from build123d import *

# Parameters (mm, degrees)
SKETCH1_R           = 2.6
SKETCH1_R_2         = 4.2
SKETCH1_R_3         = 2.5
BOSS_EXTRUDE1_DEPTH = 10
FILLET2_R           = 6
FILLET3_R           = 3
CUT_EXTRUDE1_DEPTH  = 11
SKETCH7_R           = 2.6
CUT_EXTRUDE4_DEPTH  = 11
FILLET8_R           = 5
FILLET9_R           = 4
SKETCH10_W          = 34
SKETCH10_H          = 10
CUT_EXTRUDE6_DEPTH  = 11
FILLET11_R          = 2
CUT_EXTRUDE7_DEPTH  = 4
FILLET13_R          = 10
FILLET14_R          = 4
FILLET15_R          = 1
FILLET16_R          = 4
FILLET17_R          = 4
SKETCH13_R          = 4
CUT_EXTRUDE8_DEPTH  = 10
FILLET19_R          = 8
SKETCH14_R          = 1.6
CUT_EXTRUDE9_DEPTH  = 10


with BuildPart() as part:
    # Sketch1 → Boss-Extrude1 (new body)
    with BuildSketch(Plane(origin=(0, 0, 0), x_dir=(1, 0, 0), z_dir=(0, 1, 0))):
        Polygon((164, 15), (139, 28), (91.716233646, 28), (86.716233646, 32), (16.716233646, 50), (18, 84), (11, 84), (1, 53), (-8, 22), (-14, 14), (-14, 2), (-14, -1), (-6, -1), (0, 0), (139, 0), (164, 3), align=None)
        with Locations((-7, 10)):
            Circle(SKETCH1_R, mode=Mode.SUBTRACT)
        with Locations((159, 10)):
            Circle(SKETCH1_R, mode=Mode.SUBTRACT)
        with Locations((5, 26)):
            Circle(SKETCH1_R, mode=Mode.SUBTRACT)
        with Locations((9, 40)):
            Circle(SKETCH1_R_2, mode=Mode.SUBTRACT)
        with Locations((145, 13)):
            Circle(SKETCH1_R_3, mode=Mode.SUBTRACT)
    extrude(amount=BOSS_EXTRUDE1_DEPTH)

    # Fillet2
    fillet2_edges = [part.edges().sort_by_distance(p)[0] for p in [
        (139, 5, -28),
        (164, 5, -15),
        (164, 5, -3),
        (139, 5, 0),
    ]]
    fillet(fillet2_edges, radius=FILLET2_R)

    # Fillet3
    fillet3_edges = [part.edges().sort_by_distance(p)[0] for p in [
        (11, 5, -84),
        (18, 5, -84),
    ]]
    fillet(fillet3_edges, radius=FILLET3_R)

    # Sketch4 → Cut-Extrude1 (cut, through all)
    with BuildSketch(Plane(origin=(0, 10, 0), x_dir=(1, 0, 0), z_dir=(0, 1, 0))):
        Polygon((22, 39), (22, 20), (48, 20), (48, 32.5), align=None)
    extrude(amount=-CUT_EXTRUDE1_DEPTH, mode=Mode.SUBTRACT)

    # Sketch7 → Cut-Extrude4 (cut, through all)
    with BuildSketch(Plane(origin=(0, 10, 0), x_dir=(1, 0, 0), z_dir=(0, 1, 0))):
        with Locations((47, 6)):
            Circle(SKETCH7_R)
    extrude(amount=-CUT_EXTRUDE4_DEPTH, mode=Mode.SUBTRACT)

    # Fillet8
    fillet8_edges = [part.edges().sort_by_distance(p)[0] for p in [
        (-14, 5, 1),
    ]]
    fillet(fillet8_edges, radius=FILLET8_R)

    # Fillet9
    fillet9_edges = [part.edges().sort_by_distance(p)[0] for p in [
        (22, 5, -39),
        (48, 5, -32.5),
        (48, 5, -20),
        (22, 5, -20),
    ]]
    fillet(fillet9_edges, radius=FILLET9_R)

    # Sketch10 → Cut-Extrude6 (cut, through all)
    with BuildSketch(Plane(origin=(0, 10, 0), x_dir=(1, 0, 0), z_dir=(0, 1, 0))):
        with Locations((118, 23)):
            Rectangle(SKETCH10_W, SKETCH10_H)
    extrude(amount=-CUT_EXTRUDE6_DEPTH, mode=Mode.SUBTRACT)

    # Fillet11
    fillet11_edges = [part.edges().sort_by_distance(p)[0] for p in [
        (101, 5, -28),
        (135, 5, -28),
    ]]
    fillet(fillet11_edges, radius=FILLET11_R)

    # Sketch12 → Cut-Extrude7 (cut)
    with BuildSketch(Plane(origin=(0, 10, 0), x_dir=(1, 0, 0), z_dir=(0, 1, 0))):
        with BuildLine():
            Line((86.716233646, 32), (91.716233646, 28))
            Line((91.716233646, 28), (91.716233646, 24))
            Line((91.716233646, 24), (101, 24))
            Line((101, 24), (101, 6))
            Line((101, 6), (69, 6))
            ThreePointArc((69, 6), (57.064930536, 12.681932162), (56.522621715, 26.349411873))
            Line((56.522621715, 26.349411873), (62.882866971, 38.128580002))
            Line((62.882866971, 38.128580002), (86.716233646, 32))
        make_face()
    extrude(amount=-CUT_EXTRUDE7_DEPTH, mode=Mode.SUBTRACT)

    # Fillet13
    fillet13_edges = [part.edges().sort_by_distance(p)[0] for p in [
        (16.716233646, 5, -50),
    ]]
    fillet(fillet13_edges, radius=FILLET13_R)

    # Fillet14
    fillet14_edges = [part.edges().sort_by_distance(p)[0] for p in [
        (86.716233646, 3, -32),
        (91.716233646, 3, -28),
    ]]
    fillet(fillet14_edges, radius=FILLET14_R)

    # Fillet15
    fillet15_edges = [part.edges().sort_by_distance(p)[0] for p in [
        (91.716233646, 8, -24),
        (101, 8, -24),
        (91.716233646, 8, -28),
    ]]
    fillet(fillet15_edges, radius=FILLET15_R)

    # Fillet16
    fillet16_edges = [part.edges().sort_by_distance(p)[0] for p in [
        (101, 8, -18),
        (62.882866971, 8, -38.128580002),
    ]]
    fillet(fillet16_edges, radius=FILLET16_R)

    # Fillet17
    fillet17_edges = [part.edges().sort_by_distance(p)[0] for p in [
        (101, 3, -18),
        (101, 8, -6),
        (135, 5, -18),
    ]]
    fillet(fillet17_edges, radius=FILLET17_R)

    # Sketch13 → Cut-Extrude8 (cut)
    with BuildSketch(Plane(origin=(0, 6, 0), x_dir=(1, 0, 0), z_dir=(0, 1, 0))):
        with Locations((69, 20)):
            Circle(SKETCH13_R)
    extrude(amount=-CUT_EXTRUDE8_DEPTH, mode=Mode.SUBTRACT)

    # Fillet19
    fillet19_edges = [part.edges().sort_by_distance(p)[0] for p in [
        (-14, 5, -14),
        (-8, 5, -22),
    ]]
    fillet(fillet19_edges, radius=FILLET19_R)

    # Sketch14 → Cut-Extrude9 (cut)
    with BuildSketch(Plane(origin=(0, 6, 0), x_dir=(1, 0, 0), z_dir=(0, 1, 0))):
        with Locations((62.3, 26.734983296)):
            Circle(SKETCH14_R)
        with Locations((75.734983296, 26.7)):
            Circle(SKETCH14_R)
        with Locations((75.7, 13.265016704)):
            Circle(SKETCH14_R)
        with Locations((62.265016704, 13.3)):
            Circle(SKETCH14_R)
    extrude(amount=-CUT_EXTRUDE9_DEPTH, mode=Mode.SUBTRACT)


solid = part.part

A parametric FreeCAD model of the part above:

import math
import FreeCAD as App
import Part
import Sketcher

V = App.Vector
Q = App.Units.Quantity


def edges_at(feature, points):
    """Names of the edges that pass closest to the given points."""
    edges = feature.Shape.Edges
    near = lambda p: min(range(len(edges)), key=lambda i: edges[i].distToShape(Part.Vertex(*p))[0])
    return sorted({f"Edge{near(p) + 1}" for p in points})

doc = App.newDocument("Part")
body = doc.addObject("PartDesign::Body", "Body")

# Sketch on XZ plane
sketch1 = doc.addObject("Sketcher::SketchObject", "Sketch")
body.addObject(sketch1)
sketch1.AttachmentSupport = (doc.XZ_Plane, [""])
sketch1.MapMode = "FlatFace"
sketch1.addGeometry([
    Part.LineSegment(V(164, -15, 0), V(139, -28, 0)),  # 0
    Part.LineSegment(V(139, -28, 0), V(91.7, -28, 0)),  # 1
    Part.LineSegment(V(91.7, -28, 0), V(86.7, -32, 0)),  # 2
    Part.LineSegment(V(86.7, -32, 0), V(16.7, -50, 0)),  # 3
    Part.LineSegment(V(16.7, -50, 0), V(18, -84, 0)),  # 4
    Part.LineSegment(V(18, -84, 0), V(11, -84, 0)),  # 5
    Part.LineSegment(V(11, -84, 0), V(1, -53, 0)),  # 6
    Part.LineSegment(V(1, -53, 0), V(-8, -22, 0)),  # 7
    Part.LineSegment(V(-8, -22, 0), V(-14, -14, 0)),  # 8
    Part.LineSegment(V(-14, -14, 0), V(-14, 1, 0)),  # 9
    Part.LineSegment(V(-14, 1, 0), V(-6, 1, 0)),  # 10
    Part.LineSegment(V(-6, 1, 0), V(0, 0, 0)),  # 11
    Part.LineSegment(V(0, 0, 0), V(139, 0, 0)),  # 12
    Part.LineSegment(V(139, 0, 0), V(164, -3, 0)),  # 13
    Part.LineSegment(V(164, -3, 0), V(164, -15, 0)),  # 14
    Part.Circle(V(-7, -10, 0), V(0, 0, 1), 2.6),  # 15
    Part.Circle(V(159, -10, 0), V(0, 0, 1), 2.6),  # 16
    Part.Circle(V(145, -13, 0), V(0, 0, 1), 2.5),  # 17
    Part.Circle(V(5, -26, 0), V(0, 0, 1), 2.6),  # 18
    Part.Circle(V(9, -40, 0), V(0, 0, 1), 4.2),  # 19
], False)
sketch1.addConstraint([
    Sketcher.Constraint("Coincident", 0, 2, 1, 1),
    Sketcher.Constraint("Coincident", 1, 2, 2, 1),
    Sketcher.Constraint("Coincident", 2, 2, 3, 1),
    Sketcher.Constraint("Coincident", 3, 2, 4, 1),
    Sketcher.Constraint("Coincident", 4, 2, 5, 1),
    Sketcher.Constraint("Coincident", 5, 2, 6, 1),
    Sketcher.Constraint("Coincident", 6, 2, 7, 1),
    Sketcher.Constraint("Coincident", 7, 2, 8, 1),
    Sketcher.Constraint("Coincident", 8, 2, 9, 1),
    Sketcher.Constraint("Coincident", 9, 2, 10, 1),
    Sketcher.Constraint("Coincident", 10, 2, 11, 1),
    Sketcher.Constraint("Coincident", 11, 2, 12, 1),
    Sketcher.Constraint("Coincident", 12, 2, 13, 1),
    Sketcher.Constraint("Coincident", 13, 2, 14, 1),
    Sketcher.Constraint("Coincident", 14, 2, 0, 1),
    Sketcher.Constraint("Horizontal", 1),
    Sketcher.Constraint("Horizontal", 5),
    Sketcher.Constraint("Vertical", 9),
    Sketcher.Constraint("Horizontal", 10),
    Sketcher.Constraint("Horizontal", 12),
    Sketcher.Constraint("Vertical", 14),
    Sketcher.Constraint("Coincident", 11, 2, -1, 1),
    Sketcher.Constraint("Equal", 15, 16),
    Sketcher.Constraint("Equal", 16, 18),
    Sketcher.Constraint("Horizontal", 15, 3, 16, 3),
    Sketcher.Constraint("Vertical", 0, 2, 12, 2),
    Sketcher.Constraint("Diameter", 17, Q("5 mm")),
    Sketcher.Constraint("Diameter", 15, Q("5.2 mm")),
    Sketcher.Constraint("Diameter", 19, Q("8.4 mm")),
    Sketcher.Constraint("DistanceX", 5, 2, 5, 1, Q("7 mm")),
    Sketcher.Constraint("DistanceX", 10, 1, 10, 2, Q("8 mm")),
    Sketcher.Constraint("DistanceX", 12, 1, 12, 2, Q("139 mm")),
    Sketcher.Constraint("DistanceY", 9, 1, 9, 2, Q("15 mm")),
    Sketcher.Constraint("DistanceY", 14, 2, 14, 1, Q("12 mm")),
    Sketcher.Constraint("Distance", 8, Q("10 mm")),
    Sketcher.Constraint("DistanceX", 15, 3, -1, 1, Q("7 mm")),
    Sketcher.Constraint("DistanceY", 15, 3, -1, 1, Q("10 mm")),
    Sketcher.Constraint("DistanceX", -1, 1, 16, 3, Q("159 mm")),
    Sketcher.Constraint("DistanceX", -1, 1, 17, 3, Q("145 mm")),
    Sketcher.Constraint("DistanceY", 17, 3, -1, 1, Q("13 mm")),
    Sketcher.Constraint("DistanceX", -1, 1, 18, 3, Q("5 mm")),
    Sketcher.Constraint("DistanceY", 18, 3, -1, 1, Q("26 mm")),
    Sketcher.Constraint("DistanceX", -1, 1, 19, 3, Q("9 mm")),
    Sketcher.Constraint("DistanceY", 19, 3, -1, 1, Q("40 mm")),
    Sketcher.Constraint("DistanceY", 0, 2, -1, 1, Q("28 mm")),
    Sketcher.Constraint("DistanceY", 2, 2, -1, 1, Q("32 mm")),
    Sketcher.Constraint("DistanceY", 3, 2, -1, 1, Q("50 mm")),
    Sketcher.Constraint("DistanceX", -1, 1, 4, 2, Q("18 mm")),
    Sketcher.Constraint("DistanceY", 4, 2, -1, 1, Q("84 mm")),
    Sketcher.Constraint("DistanceX", -1, 1, 6, 2, Q("1 mm")),
    Sketcher.Constraint("DistanceY", 6, 2, -1, 1, Q("53 mm")),
    Sketcher.Constraint("DistanceX", 7, 2, -1, 1, Q("8 mm")),
    Sketcher.Constraint("DistanceY", 7, 2, -1, 1, Q("22 mm")),
    Sketcher.Constraint("DistanceX", 8, 2, -1, 1, Q("14 mm")),
    Sketcher.Constraint("DistanceX", -1, 1, 13, 2, Q("164 mm")),
    Sketcher.Constraint("DistanceY", 13, 2, -1, 1, Q("3 mm")),
    Sketcher.Constraint("DistanceX", 2, 2, 1, 2, Q("5 mm")),
    Sketcher.Constraint("DistanceX", 3, 2, 2, 2, Q("70 mm")),
    Sketcher.Constraint("DistanceX", 1, 2, 1, 1, Q("47.283766 mm")),
])
pad1 = doc.addObject("PartDesign::Pad", "Pad")
body.addObject(pad1)
pad1.Profile = sketch1
pad1.Length = 10
pad1.Reversed = True
doc.recompute()

fillet = doc.addObject("PartDesign::Fillet", "Fillet")
body.addObject(fillet)
fillet.Base = (pad1, edges_at(pad1, [
    (139, 5, -28),
    (164, 5, -15),
    (164, 5, -3),
    (139, 5, 0),
]))
fillet.Radius = 6
doc.recompute()

fillet2 = doc.addObject("PartDesign::Fillet", "Fillet001")
body.addObject(fillet2)
fillet2.Base = (fillet, edges_at(fillet, [(11, 5, -84), (18, 5, -84)]))
fillet2.Radius = 3

# Sketch on XZ plane
sketch2 = doc.addObject("Sketcher::SketchObject", "Sketch001")
body.addObject(sketch2)
sketch2.AttachmentSupport = (doc.XZ_Plane, [""])
sketch2.MapMode = "FlatFace"
sketch2.AttachmentOffset = App.Placement(V(0, 0, -10), App.Rotation())
sketch2.addGeometry([
    Part.LineSegment(V(22, -39, 0), V(22, -20, 0)),
    Part.LineSegment(V(22, -20, 0), V(48, -20, 0)),
    Part.LineSegment(V(48, -20, 0), V(48, -32, 0)),
    Part.LineSegment(V(48, -32, 0), V(22, -39, 0)),
], False)
sketch2.addConstraint([
    Sketcher.Constraint("Coincident", 0, 2, 1, 1),
    Sketcher.Constraint("Coincident", 1, 2, 2, 1),
    Sketcher.Constraint("Coincident", 2, 2, 3, 1),
    Sketcher.Constraint("Coincident", 3, 2, 0, 1),
    Sketcher.Constraint("Vertical", 0),
    Sketcher.Constraint("Horizontal", 1),
    Sketcher.Constraint("Vertical", 2),
    Sketcher.Constraint("DistanceX", 1, 1, 1, 2, Q("26 mm")),
    Sketcher.Constraint("DistanceY", 0, 1, 0, 2, Q("19 mm")),
    Sketcher.Constraint("DistanceY", 2, 2, 2, 1, Q("12.5 mm")),
    Sketcher.Constraint("DistanceX", -1, 1, 0, 2, Q("22 mm")),
    Sketcher.Constraint("DistanceY", 0, 2, -1, 1, Q("20 mm")),
])
pocket1 = doc.addObject("PartDesign::Pocket", "Pocket")
body.addObject(pocket1)
pocket1.Profile = sketch2
pocket1.Type = "ThroughAll"
pocket1.Reversed = True

# Sketch on XZ plane
sketch3 = doc.addObject("Sketcher::SketchObject", "Sketch002")
body.addObject(sketch3)
sketch3.AttachmentSupport = (doc.XZ_Plane, [""])
sketch3.MapMode = "FlatFace"
sketch3.AttachmentOffset = App.Placement(V(0, 0, -10), App.Rotation())
sketch3.addGeometry(Part.Circle(V(47, -6, 0), V(0, 0, 1), 2.6), False)
sketch3.addConstraint([
    Sketcher.Constraint("Diameter", 0, Q("5.2 mm")),
    Sketcher.Constraint("DistanceX", -1, 1, 0, 3, Q("47 mm")),
    Sketcher.Constraint("DistanceY", 0, 3, -1, 1, Q("6 mm")),
])
pocket2 = doc.addObject("PartDesign::Pocket", "Pocket001")
body.addObject(pocket2)
pocket2.Profile = sketch3
pocket2.Type = "ThroughAll"
pocket2.Reversed = True
doc.recompute()

fillet3 = doc.addObject("PartDesign::Fillet", "Fillet002")
body.addObject(fillet3)
fillet3.Base = (pocket2, edges_at(pocket2, [(-14, 5, 1)]))
fillet3.Radius = 5
doc.recompute()

fillet4 = doc.addObject("PartDesign::Fillet", "Fillet003")
body.addObject(fillet4)
fillet4.Base = (fillet3, edges_at(fillet3, [
    (22, 5, -39),
    (48, 5, -32.5),
    (48, 5, -20),
    (22, 5, -20),
]))
fillet4.Radius = 4

# Sketch on XZ plane
sketch4 = doc.addObject("Sketcher::SketchObject", "Sketch003")
body.addObject(sketch4)
sketch4.AttachmentSupport = (doc.XZ_Plane, [""])
sketch4.MapMode = "FlatFace"
sketch4.AttachmentOffset = App.Placement(V(0, 0, -10), App.Rotation())
sketch4.addGeometry([
    Part.LineSegment(V(101, -28, 0), V(101, -18, 0)),
    Part.LineSegment(V(101, -18, 0), V(135, -18, 0)),
    Part.LineSegment(V(135, -18, 0), V(135, -28, 0)),
    Part.LineSegment(V(135, -28, 0), V(101, -28, 0)),
], False)
sketch4.addConstraint([
    Sketcher.Constraint("Coincident", 0, 2, 1, 1),
    Sketcher.Constraint("Coincident", 1, 2, 2, 1),
    Sketcher.Constraint("Coincident", 2, 2, 3, 1),
    Sketcher.Constraint("Coincident", 3, 2, 0, 1),
    Sketcher.Constraint("Vertical", 0),
    Sketcher.Constraint("Horizontal", 1),
    Sketcher.Constraint("Vertical", 2),
    Sketcher.Constraint("Horizontal", 3),
    Sketcher.Constraint("DistanceX", 1, 1, 1, 2, Q("34 mm")),
    Sketcher.Constraint("DistanceY", 0, 1, 0, 2, Q("10 mm")),
    Sketcher.Constraint("DistanceX", -1, 1, 0, 2, Q("101 mm")),
    Sketcher.Constraint("DistanceY", 0, 2, -1, 1, Q("18 mm")),
])
pocket3 = doc.addObject("PartDesign::Pocket", "Pocket002")
body.addObject(pocket3)
pocket3.Profile = sketch4
pocket3.Type = "ThroughAll"
pocket3.Reversed = True
doc.recompute()

fillet5 = doc.addObject("PartDesign::Fillet", "Fillet004")
body.addObject(fillet5)
fillet5.Base = (pocket3, edges_at(pocket3, [(101, 5, -28), (135, 5, -28)]))
fillet5.Radius = 2

# Sketch on XZ plane
sketch5 = doc.addObject("Sketcher::SketchObject", "Sketch004")
body.addObject(sketch5)
sketch5.AttachmentSupport = (doc.XZ_Plane, [""])
sketch5.MapMode = "FlatFace"
sketch5.AttachmentOffset = App.Placement(V(0, 0, -10), App.Rotation())
sketch5.addGeometry([
    Part.LineSegment(V(91.7, -28, 0), V(86.7, -32, 0)),  # 0
    Part.LineSegment(V(86.7, -32, 0), V(62.9, -38.1, 0)),  # 1
    Part.LineSegment(V(62.9, -38.1, 0), V(56.5, -26.3, 0)),  # 2
    Part.ArcOfCircle(Part.Circle(V(69, -20, 0), V(0, 0, 1), 14), math.radians(90), math.radians(207)),  # 3
    Part.LineSegment(V(69, -6, 0), V(101, -6, 0)),  # 4
    Part.LineSegment(V(101, -6, 0), V(101, -24, 0)),  # 5
    Part.LineSegment(V(101, -24, 0), V(91.7, -24, 0)),  # 6
    Part.LineSegment(V(91.7, -24, 0), V(91.7, -28, 0)),  # 7
], False)
sketch5.addConstraint([
    Sketcher.Constraint("Coincident", 0, 2, 1, 1),
    Sketcher.Constraint("Coincident", 1, 2, 2, 1),
    Sketcher.Constraint("Coincident", 2, 2, 3, 2),
    Sketcher.Constraint("Tangent", 3, 1, 4, 1),
    Sketcher.Constraint("Coincident", 4, 2, 5, 1),
    Sketcher.Constraint("Coincident", 5, 2, 6, 1),
    Sketcher.Constraint("Coincident", 6, 2, 7, 1),
    Sketcher.Constraint("Coincident", 7, 2, 0, 1),
    Sketcher.Constraint("Horizontal", 4),
    Sketcher.Constraint("Vertical", 5),
    Sketcher.Constraint("Horizontal", 6),
    Sketcher.Constraint("Vertical", 7),
    Sketcher.Constraint("Radius", 3, Q("14 mm")),
    Sketcher.Constraint("DistanceX", 4, 1, 4, 2, Q("32 mm")),
    Sketcher.Constraint("DistanceY", 5, 2, 5, 1, Q("18 mm")),
    Sketcher.Constraint("DistanceY", 7, 2, 7, 1, Q("4 mm")),
    Sketcher.Constraint("DistanceX", -1, 1, 3, 3, Q("69 mm")),
    Sketcher.Constraint("DistanceY", 3, 3, -1, 1, Q("20 mm")),
    Sketcher.Constraint("DistanceY", 0, 2, -1, 1, Q("32 mm")),
    Sketcher.Constraint("DistanceX", 0, 2, 6, 2, Q("5 mm")),
    Sketcher.Constraint("DistanceX", 6, 2, 6, 1, Q("9.283766 mm")),
    Sketcher.Constraint("DistanceY", 1, 2, -1, 1, Q("38.12858 mm")),
    Sketcher.Constraint("DistanceX", -1, 1, 2, 2, Q("56.522622 mm")),
    Sketcher.Constraint("Distance", 1, Q("24.608715 mm")),
])
pocket4 = doc.addObject("PartDesign::Pocket", "Pocket003")
body.addObject(pocket4)
pocket4.Profile = sketch5
pocket4.Length = 4
pocket4.Reversed = True
doc.recompute()

fillet6 = doc.addObject("PartDesign::Fillet", "Fillet005")
body.addObject(fillet6)
fillet6.Base = (pocket4, edges_at(pocket4, [(16.716, 5, -50)]))
fillet6.Radius = 10
doc.recompute()

fillet7 = doc.addObject("PartDesign::Fillet", "Fillet006")
body.addObject(fillet7)
fillet7.Base = (fillet6, edges_at(fillet6, [(86.716, 3, -32), (91.716, 3, -28)]))
fillet7.Radius = 4
doc.recompute()

fillet8 = doc.addObject("PartDesign::Fillet", "Fillet007")
body.addObject(fillet8)
fillet8.Base = (fillet7, edges_at(fillet7, [(91.716, 8, -24), (101, 8, -24), (91.716, 8, -28)]))
fillet8.Radius = 1
doc.recompute()

fillet9 = doc.addObject("PartDesign::Fillet", "Fillet008")
body.addObject(fillet9)
fillet9.Base = (fillet8, edges_at(fillet8, [(101, 8, -18), (62.883, 8, -38.129)]))
fillet9.Radius = 4
doc.recompute()

fillet10 = doc.addObject("PartDesign::Fillet", "Fillet009")
body.addObject(fillet10)
fillet10.Base = (fillet9, edges_at(fillet9, [(101, 3, -18), (101, 8, -6), (135, 5, -18)]))
fillet10.Radius = 4

# Sketch on XZ plane
sketch6 = doc.addObject("Sketcher::SketchObject", "Sketch005")
body.addObject(sketch6)
sketch6.AttachmentSupport = (doc.XZ_Plane, [""])
sketch6.MapMode = "FlatFace"
sketch6.AttachmentOffset = App.Placement(V(0, 0, -6), App.Rotation())
sketch6.addGeometry(Part.Circle(V(69, -20, 0), V(0, 0, 1), 4), False)
sketch6.addConstraint([
    Sketcher.Constraint("Diameter", 0, Q("8 mm")),
    Sketcher.Constraint("DistanceX", -1, 1, 0, 3, Q("69 mm")),
    Sketcher.Constraint("DistanceY", 0, 3, -1, 1, Q("20 mm")),
])
pocket5 = doc.addObject("PartDesign::Pocket", "Pocket004")
body.addObject(pocket5)
pocket5.Profile = sketch6
pocket5.Length = 10
pocket5.Reversed = True
doc.recompute()

fillet11 = doc.addObject("PartDesign::Fillet", "Fillet010")
body.addObject(fillet11)
fillet11.Base = (pocket5, edges_at(pocket5, [(-14, 5, -14), (-8, 5, -22)]))
fillet11.Radius = 8

# Sketch on XZ plane
sketch7 = doc.addObject("Sketcher::SketchObject", "Sketch006")
body.addObject(sketch7)
sketch7.AttachmentSupport = (doc.XZ_Plane, [""])
sketch7.MapMode = "FlatFace"
sketch7.AttachmentOffset = App.Placement(V(0, 0, -6), App.Rotation())
sketch7.addGeometry([
    Part.Circle(V(62.3, -26.7, 0), V(0, 0, 1), 1.6),
    Part.Circle(V(75.7, -26.7, 0), V(0, 0, 1), 1.6),
    Part.Circle(V(75.7, -13.3, 0), V(0, 0, 1), 1.6),
    Part.Circle(V(62.3, -13.3, 0), V(0, 0, 1), 1.6),
], False)
sketch7.addConstraint([
    Sketcher.Constraint("Equal", 0, 1),
    Sketcher.Constraint("Equal", 1, 2),
    Sketcher.Constraint("Equal", 2, 3),
    Sketcher.Constraint("Diameter", 0, Q("3.2 mm")),
    Sketcher.Constraint("DistanceX", -1, 1, 0, 3, Q("62.3 mm")),
    Sketcher.Constraint("DistanceY", 1, 3, -1, 1, Q("26.7 mm")),
    Sketcher.Constraint("DistanceX", -1, 1, 2, 3, Q("75.7 mm")),
    Sketcher.Constraint("DistanceY", 3, 3, -1, 1, Q("13.3 mm")),
    Sketcher.Constraint("DistanceY", 0, 3, -1, 1, Q("26.734983 mm")),
    Sketcher.Constraint("DistanceX", -1, 1, 1, 3, Q("75.734983 mm")),
    Sketcher.Constraint("DistanceY", 2, 3, -1, 1, Q("13.265017 mm")),
    Sketcher.Constraint("DistanceX", -1, 1, 3, 3, Q("62.265017 mm")),
])
pocket6 = doc.addObject("PartDesign::Pocket", "Pocket005")
body.addObject(pocket6)
pocket6.Profile = sketch7
pocket6.Length = 10
pocket6.Reversed = True

doc.recompute()
